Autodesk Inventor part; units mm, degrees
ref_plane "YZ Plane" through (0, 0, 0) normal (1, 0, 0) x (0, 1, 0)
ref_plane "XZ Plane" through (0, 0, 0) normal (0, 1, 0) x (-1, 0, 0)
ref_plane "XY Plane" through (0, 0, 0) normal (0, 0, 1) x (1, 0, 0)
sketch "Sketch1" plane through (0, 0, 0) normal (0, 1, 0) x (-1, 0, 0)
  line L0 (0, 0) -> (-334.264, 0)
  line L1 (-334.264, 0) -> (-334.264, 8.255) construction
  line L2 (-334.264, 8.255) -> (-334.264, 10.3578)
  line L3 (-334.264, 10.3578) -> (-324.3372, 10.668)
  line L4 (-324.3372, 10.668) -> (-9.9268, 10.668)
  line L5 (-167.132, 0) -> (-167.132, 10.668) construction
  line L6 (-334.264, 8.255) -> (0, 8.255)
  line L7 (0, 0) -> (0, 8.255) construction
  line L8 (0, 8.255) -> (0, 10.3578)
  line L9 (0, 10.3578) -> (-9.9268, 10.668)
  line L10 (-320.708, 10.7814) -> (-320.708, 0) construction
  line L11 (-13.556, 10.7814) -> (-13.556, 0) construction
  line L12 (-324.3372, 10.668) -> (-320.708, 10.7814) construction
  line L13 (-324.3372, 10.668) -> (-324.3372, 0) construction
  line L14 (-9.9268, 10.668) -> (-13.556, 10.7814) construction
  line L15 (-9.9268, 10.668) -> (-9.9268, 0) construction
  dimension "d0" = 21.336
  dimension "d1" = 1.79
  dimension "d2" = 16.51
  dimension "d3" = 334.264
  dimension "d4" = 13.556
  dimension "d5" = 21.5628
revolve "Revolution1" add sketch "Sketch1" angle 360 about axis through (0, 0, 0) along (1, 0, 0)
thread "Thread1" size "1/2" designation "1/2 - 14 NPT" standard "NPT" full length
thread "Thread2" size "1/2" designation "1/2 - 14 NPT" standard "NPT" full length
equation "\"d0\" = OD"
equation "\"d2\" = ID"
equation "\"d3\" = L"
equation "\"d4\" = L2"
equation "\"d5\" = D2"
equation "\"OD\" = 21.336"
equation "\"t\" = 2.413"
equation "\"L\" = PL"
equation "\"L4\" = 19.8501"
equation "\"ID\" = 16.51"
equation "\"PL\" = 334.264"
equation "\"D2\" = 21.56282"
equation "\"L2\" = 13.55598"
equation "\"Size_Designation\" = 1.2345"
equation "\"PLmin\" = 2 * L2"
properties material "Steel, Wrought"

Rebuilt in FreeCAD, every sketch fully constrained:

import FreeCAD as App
import Part
import Sketcher
Q = App.Units.Quantity

doc = App.newDocument("Part")
body = doc.addObject("PartDesign::Body", "Body")

# Sketch on XZ plane
sketch1 = body.newObject("Sketcher::SketchObject", "Sketch")
sketch1.AttachmentSupport = (doc.getObject("XZ_Plane"), [""])
sketch1.MapMode = "FlatFace"
sketch1.addGeometry(Part.LineSegment(App.Vector(334.3, 10.4, 0), App.Vector(334.3, 8.3, 0)), False)
sketch1.addGeometry(Part.LineSegment(App.Vector(334.3, 8.3, 0), App.Vector(0, 8.3, 0)), False)
sketch1.addGeometry(Part.LineSegment(App.Vector(0, 8.3, 0), App.Vector(0, 10.4, 0)), False)
sketch1.addGeometry(Part.LineSegment(App.Vector(0, 10.4, 0), App.Vector(9.9, 10.7, 0)), False)
sketch1.addGeometry(Part.LineSegment(App.Vector(9.9, 10.7, 0), App.Vector(324.3, 10.7, 0)), False)
sketch1.addGeometry(Part.LineSegment(App.Vector(324.3, 10.7, 0), App.Vector(334.3, 10.4, 0)), False)
sketch1.addConstraint(Sketcher.Constraint("Coincident", 0, 2, 1, 1))
sketch1.addConstraint(Sketcher.Constraint("Coincident", 1, 2, 2, 1))
sketch1.addConstraint(Sketcher.Constraint("Coincident", 2, 2, 3, 1))
sketch1.addConstraint(Sketcher.Constraint("Coincident", 3, 2, 4, 1))
sketch1.addConstraint(Sketcher.Constraint("Coincident", 4, 2, 5, 1))
sketch1.addConstraint(Sketcher.Constraint("Coincident", 5, 2, 0, 1))
sketch1.addConstraint(Sketcher.Constraint("Vertical", 0))
sketch1.addConstraint(Sketcher.Constraint("Horizontal", 1))
sketch1.addConstraint(Sketcher.Constraint("Vertical", 2))
sketch1.addConstraint(Sketcher.Constraint("Horizontal", 4))
sketch1.addConstraint(Sketcher.Constraint("PointOnObject", 1, 2, -2))
sketch1.addConstraint(Sketcher.Constraint("Horizontal", 2, 2, 5, 2))
sketch1.addConstraint(Sketcher.Constraint("Equal", 3, 5))
sketch1.addConstraint(Sketcher.Constraint("DistanceX", 1, 2, 1, 1, Q("13.16 in")))
sketch1.addConstraint(Sketcher.Constraint("Angle", 3, Q("1.7898 deg")))
sketch1.addConstraint(Sketcher.Constraint("DistanceY", -1, 1, 3, 2, Q("0.42 in")))
sketch1.addConstraint(Sketcher.Constraint("Distance", 3, Q("0.391 in")))
sketch1.addConstraint(Sketcher.Constraint("DistanceY", -1, 1, 0, 2, Q("0.325 in")))
revolution = body.newObject("PartDesign::Revolution", "Revolution")
revolution.Profile = sketch1
revolution.ReferenceAxis = (sketch1, ["H_Axis"])
revolution.Angle = 360

doc.recompute()
